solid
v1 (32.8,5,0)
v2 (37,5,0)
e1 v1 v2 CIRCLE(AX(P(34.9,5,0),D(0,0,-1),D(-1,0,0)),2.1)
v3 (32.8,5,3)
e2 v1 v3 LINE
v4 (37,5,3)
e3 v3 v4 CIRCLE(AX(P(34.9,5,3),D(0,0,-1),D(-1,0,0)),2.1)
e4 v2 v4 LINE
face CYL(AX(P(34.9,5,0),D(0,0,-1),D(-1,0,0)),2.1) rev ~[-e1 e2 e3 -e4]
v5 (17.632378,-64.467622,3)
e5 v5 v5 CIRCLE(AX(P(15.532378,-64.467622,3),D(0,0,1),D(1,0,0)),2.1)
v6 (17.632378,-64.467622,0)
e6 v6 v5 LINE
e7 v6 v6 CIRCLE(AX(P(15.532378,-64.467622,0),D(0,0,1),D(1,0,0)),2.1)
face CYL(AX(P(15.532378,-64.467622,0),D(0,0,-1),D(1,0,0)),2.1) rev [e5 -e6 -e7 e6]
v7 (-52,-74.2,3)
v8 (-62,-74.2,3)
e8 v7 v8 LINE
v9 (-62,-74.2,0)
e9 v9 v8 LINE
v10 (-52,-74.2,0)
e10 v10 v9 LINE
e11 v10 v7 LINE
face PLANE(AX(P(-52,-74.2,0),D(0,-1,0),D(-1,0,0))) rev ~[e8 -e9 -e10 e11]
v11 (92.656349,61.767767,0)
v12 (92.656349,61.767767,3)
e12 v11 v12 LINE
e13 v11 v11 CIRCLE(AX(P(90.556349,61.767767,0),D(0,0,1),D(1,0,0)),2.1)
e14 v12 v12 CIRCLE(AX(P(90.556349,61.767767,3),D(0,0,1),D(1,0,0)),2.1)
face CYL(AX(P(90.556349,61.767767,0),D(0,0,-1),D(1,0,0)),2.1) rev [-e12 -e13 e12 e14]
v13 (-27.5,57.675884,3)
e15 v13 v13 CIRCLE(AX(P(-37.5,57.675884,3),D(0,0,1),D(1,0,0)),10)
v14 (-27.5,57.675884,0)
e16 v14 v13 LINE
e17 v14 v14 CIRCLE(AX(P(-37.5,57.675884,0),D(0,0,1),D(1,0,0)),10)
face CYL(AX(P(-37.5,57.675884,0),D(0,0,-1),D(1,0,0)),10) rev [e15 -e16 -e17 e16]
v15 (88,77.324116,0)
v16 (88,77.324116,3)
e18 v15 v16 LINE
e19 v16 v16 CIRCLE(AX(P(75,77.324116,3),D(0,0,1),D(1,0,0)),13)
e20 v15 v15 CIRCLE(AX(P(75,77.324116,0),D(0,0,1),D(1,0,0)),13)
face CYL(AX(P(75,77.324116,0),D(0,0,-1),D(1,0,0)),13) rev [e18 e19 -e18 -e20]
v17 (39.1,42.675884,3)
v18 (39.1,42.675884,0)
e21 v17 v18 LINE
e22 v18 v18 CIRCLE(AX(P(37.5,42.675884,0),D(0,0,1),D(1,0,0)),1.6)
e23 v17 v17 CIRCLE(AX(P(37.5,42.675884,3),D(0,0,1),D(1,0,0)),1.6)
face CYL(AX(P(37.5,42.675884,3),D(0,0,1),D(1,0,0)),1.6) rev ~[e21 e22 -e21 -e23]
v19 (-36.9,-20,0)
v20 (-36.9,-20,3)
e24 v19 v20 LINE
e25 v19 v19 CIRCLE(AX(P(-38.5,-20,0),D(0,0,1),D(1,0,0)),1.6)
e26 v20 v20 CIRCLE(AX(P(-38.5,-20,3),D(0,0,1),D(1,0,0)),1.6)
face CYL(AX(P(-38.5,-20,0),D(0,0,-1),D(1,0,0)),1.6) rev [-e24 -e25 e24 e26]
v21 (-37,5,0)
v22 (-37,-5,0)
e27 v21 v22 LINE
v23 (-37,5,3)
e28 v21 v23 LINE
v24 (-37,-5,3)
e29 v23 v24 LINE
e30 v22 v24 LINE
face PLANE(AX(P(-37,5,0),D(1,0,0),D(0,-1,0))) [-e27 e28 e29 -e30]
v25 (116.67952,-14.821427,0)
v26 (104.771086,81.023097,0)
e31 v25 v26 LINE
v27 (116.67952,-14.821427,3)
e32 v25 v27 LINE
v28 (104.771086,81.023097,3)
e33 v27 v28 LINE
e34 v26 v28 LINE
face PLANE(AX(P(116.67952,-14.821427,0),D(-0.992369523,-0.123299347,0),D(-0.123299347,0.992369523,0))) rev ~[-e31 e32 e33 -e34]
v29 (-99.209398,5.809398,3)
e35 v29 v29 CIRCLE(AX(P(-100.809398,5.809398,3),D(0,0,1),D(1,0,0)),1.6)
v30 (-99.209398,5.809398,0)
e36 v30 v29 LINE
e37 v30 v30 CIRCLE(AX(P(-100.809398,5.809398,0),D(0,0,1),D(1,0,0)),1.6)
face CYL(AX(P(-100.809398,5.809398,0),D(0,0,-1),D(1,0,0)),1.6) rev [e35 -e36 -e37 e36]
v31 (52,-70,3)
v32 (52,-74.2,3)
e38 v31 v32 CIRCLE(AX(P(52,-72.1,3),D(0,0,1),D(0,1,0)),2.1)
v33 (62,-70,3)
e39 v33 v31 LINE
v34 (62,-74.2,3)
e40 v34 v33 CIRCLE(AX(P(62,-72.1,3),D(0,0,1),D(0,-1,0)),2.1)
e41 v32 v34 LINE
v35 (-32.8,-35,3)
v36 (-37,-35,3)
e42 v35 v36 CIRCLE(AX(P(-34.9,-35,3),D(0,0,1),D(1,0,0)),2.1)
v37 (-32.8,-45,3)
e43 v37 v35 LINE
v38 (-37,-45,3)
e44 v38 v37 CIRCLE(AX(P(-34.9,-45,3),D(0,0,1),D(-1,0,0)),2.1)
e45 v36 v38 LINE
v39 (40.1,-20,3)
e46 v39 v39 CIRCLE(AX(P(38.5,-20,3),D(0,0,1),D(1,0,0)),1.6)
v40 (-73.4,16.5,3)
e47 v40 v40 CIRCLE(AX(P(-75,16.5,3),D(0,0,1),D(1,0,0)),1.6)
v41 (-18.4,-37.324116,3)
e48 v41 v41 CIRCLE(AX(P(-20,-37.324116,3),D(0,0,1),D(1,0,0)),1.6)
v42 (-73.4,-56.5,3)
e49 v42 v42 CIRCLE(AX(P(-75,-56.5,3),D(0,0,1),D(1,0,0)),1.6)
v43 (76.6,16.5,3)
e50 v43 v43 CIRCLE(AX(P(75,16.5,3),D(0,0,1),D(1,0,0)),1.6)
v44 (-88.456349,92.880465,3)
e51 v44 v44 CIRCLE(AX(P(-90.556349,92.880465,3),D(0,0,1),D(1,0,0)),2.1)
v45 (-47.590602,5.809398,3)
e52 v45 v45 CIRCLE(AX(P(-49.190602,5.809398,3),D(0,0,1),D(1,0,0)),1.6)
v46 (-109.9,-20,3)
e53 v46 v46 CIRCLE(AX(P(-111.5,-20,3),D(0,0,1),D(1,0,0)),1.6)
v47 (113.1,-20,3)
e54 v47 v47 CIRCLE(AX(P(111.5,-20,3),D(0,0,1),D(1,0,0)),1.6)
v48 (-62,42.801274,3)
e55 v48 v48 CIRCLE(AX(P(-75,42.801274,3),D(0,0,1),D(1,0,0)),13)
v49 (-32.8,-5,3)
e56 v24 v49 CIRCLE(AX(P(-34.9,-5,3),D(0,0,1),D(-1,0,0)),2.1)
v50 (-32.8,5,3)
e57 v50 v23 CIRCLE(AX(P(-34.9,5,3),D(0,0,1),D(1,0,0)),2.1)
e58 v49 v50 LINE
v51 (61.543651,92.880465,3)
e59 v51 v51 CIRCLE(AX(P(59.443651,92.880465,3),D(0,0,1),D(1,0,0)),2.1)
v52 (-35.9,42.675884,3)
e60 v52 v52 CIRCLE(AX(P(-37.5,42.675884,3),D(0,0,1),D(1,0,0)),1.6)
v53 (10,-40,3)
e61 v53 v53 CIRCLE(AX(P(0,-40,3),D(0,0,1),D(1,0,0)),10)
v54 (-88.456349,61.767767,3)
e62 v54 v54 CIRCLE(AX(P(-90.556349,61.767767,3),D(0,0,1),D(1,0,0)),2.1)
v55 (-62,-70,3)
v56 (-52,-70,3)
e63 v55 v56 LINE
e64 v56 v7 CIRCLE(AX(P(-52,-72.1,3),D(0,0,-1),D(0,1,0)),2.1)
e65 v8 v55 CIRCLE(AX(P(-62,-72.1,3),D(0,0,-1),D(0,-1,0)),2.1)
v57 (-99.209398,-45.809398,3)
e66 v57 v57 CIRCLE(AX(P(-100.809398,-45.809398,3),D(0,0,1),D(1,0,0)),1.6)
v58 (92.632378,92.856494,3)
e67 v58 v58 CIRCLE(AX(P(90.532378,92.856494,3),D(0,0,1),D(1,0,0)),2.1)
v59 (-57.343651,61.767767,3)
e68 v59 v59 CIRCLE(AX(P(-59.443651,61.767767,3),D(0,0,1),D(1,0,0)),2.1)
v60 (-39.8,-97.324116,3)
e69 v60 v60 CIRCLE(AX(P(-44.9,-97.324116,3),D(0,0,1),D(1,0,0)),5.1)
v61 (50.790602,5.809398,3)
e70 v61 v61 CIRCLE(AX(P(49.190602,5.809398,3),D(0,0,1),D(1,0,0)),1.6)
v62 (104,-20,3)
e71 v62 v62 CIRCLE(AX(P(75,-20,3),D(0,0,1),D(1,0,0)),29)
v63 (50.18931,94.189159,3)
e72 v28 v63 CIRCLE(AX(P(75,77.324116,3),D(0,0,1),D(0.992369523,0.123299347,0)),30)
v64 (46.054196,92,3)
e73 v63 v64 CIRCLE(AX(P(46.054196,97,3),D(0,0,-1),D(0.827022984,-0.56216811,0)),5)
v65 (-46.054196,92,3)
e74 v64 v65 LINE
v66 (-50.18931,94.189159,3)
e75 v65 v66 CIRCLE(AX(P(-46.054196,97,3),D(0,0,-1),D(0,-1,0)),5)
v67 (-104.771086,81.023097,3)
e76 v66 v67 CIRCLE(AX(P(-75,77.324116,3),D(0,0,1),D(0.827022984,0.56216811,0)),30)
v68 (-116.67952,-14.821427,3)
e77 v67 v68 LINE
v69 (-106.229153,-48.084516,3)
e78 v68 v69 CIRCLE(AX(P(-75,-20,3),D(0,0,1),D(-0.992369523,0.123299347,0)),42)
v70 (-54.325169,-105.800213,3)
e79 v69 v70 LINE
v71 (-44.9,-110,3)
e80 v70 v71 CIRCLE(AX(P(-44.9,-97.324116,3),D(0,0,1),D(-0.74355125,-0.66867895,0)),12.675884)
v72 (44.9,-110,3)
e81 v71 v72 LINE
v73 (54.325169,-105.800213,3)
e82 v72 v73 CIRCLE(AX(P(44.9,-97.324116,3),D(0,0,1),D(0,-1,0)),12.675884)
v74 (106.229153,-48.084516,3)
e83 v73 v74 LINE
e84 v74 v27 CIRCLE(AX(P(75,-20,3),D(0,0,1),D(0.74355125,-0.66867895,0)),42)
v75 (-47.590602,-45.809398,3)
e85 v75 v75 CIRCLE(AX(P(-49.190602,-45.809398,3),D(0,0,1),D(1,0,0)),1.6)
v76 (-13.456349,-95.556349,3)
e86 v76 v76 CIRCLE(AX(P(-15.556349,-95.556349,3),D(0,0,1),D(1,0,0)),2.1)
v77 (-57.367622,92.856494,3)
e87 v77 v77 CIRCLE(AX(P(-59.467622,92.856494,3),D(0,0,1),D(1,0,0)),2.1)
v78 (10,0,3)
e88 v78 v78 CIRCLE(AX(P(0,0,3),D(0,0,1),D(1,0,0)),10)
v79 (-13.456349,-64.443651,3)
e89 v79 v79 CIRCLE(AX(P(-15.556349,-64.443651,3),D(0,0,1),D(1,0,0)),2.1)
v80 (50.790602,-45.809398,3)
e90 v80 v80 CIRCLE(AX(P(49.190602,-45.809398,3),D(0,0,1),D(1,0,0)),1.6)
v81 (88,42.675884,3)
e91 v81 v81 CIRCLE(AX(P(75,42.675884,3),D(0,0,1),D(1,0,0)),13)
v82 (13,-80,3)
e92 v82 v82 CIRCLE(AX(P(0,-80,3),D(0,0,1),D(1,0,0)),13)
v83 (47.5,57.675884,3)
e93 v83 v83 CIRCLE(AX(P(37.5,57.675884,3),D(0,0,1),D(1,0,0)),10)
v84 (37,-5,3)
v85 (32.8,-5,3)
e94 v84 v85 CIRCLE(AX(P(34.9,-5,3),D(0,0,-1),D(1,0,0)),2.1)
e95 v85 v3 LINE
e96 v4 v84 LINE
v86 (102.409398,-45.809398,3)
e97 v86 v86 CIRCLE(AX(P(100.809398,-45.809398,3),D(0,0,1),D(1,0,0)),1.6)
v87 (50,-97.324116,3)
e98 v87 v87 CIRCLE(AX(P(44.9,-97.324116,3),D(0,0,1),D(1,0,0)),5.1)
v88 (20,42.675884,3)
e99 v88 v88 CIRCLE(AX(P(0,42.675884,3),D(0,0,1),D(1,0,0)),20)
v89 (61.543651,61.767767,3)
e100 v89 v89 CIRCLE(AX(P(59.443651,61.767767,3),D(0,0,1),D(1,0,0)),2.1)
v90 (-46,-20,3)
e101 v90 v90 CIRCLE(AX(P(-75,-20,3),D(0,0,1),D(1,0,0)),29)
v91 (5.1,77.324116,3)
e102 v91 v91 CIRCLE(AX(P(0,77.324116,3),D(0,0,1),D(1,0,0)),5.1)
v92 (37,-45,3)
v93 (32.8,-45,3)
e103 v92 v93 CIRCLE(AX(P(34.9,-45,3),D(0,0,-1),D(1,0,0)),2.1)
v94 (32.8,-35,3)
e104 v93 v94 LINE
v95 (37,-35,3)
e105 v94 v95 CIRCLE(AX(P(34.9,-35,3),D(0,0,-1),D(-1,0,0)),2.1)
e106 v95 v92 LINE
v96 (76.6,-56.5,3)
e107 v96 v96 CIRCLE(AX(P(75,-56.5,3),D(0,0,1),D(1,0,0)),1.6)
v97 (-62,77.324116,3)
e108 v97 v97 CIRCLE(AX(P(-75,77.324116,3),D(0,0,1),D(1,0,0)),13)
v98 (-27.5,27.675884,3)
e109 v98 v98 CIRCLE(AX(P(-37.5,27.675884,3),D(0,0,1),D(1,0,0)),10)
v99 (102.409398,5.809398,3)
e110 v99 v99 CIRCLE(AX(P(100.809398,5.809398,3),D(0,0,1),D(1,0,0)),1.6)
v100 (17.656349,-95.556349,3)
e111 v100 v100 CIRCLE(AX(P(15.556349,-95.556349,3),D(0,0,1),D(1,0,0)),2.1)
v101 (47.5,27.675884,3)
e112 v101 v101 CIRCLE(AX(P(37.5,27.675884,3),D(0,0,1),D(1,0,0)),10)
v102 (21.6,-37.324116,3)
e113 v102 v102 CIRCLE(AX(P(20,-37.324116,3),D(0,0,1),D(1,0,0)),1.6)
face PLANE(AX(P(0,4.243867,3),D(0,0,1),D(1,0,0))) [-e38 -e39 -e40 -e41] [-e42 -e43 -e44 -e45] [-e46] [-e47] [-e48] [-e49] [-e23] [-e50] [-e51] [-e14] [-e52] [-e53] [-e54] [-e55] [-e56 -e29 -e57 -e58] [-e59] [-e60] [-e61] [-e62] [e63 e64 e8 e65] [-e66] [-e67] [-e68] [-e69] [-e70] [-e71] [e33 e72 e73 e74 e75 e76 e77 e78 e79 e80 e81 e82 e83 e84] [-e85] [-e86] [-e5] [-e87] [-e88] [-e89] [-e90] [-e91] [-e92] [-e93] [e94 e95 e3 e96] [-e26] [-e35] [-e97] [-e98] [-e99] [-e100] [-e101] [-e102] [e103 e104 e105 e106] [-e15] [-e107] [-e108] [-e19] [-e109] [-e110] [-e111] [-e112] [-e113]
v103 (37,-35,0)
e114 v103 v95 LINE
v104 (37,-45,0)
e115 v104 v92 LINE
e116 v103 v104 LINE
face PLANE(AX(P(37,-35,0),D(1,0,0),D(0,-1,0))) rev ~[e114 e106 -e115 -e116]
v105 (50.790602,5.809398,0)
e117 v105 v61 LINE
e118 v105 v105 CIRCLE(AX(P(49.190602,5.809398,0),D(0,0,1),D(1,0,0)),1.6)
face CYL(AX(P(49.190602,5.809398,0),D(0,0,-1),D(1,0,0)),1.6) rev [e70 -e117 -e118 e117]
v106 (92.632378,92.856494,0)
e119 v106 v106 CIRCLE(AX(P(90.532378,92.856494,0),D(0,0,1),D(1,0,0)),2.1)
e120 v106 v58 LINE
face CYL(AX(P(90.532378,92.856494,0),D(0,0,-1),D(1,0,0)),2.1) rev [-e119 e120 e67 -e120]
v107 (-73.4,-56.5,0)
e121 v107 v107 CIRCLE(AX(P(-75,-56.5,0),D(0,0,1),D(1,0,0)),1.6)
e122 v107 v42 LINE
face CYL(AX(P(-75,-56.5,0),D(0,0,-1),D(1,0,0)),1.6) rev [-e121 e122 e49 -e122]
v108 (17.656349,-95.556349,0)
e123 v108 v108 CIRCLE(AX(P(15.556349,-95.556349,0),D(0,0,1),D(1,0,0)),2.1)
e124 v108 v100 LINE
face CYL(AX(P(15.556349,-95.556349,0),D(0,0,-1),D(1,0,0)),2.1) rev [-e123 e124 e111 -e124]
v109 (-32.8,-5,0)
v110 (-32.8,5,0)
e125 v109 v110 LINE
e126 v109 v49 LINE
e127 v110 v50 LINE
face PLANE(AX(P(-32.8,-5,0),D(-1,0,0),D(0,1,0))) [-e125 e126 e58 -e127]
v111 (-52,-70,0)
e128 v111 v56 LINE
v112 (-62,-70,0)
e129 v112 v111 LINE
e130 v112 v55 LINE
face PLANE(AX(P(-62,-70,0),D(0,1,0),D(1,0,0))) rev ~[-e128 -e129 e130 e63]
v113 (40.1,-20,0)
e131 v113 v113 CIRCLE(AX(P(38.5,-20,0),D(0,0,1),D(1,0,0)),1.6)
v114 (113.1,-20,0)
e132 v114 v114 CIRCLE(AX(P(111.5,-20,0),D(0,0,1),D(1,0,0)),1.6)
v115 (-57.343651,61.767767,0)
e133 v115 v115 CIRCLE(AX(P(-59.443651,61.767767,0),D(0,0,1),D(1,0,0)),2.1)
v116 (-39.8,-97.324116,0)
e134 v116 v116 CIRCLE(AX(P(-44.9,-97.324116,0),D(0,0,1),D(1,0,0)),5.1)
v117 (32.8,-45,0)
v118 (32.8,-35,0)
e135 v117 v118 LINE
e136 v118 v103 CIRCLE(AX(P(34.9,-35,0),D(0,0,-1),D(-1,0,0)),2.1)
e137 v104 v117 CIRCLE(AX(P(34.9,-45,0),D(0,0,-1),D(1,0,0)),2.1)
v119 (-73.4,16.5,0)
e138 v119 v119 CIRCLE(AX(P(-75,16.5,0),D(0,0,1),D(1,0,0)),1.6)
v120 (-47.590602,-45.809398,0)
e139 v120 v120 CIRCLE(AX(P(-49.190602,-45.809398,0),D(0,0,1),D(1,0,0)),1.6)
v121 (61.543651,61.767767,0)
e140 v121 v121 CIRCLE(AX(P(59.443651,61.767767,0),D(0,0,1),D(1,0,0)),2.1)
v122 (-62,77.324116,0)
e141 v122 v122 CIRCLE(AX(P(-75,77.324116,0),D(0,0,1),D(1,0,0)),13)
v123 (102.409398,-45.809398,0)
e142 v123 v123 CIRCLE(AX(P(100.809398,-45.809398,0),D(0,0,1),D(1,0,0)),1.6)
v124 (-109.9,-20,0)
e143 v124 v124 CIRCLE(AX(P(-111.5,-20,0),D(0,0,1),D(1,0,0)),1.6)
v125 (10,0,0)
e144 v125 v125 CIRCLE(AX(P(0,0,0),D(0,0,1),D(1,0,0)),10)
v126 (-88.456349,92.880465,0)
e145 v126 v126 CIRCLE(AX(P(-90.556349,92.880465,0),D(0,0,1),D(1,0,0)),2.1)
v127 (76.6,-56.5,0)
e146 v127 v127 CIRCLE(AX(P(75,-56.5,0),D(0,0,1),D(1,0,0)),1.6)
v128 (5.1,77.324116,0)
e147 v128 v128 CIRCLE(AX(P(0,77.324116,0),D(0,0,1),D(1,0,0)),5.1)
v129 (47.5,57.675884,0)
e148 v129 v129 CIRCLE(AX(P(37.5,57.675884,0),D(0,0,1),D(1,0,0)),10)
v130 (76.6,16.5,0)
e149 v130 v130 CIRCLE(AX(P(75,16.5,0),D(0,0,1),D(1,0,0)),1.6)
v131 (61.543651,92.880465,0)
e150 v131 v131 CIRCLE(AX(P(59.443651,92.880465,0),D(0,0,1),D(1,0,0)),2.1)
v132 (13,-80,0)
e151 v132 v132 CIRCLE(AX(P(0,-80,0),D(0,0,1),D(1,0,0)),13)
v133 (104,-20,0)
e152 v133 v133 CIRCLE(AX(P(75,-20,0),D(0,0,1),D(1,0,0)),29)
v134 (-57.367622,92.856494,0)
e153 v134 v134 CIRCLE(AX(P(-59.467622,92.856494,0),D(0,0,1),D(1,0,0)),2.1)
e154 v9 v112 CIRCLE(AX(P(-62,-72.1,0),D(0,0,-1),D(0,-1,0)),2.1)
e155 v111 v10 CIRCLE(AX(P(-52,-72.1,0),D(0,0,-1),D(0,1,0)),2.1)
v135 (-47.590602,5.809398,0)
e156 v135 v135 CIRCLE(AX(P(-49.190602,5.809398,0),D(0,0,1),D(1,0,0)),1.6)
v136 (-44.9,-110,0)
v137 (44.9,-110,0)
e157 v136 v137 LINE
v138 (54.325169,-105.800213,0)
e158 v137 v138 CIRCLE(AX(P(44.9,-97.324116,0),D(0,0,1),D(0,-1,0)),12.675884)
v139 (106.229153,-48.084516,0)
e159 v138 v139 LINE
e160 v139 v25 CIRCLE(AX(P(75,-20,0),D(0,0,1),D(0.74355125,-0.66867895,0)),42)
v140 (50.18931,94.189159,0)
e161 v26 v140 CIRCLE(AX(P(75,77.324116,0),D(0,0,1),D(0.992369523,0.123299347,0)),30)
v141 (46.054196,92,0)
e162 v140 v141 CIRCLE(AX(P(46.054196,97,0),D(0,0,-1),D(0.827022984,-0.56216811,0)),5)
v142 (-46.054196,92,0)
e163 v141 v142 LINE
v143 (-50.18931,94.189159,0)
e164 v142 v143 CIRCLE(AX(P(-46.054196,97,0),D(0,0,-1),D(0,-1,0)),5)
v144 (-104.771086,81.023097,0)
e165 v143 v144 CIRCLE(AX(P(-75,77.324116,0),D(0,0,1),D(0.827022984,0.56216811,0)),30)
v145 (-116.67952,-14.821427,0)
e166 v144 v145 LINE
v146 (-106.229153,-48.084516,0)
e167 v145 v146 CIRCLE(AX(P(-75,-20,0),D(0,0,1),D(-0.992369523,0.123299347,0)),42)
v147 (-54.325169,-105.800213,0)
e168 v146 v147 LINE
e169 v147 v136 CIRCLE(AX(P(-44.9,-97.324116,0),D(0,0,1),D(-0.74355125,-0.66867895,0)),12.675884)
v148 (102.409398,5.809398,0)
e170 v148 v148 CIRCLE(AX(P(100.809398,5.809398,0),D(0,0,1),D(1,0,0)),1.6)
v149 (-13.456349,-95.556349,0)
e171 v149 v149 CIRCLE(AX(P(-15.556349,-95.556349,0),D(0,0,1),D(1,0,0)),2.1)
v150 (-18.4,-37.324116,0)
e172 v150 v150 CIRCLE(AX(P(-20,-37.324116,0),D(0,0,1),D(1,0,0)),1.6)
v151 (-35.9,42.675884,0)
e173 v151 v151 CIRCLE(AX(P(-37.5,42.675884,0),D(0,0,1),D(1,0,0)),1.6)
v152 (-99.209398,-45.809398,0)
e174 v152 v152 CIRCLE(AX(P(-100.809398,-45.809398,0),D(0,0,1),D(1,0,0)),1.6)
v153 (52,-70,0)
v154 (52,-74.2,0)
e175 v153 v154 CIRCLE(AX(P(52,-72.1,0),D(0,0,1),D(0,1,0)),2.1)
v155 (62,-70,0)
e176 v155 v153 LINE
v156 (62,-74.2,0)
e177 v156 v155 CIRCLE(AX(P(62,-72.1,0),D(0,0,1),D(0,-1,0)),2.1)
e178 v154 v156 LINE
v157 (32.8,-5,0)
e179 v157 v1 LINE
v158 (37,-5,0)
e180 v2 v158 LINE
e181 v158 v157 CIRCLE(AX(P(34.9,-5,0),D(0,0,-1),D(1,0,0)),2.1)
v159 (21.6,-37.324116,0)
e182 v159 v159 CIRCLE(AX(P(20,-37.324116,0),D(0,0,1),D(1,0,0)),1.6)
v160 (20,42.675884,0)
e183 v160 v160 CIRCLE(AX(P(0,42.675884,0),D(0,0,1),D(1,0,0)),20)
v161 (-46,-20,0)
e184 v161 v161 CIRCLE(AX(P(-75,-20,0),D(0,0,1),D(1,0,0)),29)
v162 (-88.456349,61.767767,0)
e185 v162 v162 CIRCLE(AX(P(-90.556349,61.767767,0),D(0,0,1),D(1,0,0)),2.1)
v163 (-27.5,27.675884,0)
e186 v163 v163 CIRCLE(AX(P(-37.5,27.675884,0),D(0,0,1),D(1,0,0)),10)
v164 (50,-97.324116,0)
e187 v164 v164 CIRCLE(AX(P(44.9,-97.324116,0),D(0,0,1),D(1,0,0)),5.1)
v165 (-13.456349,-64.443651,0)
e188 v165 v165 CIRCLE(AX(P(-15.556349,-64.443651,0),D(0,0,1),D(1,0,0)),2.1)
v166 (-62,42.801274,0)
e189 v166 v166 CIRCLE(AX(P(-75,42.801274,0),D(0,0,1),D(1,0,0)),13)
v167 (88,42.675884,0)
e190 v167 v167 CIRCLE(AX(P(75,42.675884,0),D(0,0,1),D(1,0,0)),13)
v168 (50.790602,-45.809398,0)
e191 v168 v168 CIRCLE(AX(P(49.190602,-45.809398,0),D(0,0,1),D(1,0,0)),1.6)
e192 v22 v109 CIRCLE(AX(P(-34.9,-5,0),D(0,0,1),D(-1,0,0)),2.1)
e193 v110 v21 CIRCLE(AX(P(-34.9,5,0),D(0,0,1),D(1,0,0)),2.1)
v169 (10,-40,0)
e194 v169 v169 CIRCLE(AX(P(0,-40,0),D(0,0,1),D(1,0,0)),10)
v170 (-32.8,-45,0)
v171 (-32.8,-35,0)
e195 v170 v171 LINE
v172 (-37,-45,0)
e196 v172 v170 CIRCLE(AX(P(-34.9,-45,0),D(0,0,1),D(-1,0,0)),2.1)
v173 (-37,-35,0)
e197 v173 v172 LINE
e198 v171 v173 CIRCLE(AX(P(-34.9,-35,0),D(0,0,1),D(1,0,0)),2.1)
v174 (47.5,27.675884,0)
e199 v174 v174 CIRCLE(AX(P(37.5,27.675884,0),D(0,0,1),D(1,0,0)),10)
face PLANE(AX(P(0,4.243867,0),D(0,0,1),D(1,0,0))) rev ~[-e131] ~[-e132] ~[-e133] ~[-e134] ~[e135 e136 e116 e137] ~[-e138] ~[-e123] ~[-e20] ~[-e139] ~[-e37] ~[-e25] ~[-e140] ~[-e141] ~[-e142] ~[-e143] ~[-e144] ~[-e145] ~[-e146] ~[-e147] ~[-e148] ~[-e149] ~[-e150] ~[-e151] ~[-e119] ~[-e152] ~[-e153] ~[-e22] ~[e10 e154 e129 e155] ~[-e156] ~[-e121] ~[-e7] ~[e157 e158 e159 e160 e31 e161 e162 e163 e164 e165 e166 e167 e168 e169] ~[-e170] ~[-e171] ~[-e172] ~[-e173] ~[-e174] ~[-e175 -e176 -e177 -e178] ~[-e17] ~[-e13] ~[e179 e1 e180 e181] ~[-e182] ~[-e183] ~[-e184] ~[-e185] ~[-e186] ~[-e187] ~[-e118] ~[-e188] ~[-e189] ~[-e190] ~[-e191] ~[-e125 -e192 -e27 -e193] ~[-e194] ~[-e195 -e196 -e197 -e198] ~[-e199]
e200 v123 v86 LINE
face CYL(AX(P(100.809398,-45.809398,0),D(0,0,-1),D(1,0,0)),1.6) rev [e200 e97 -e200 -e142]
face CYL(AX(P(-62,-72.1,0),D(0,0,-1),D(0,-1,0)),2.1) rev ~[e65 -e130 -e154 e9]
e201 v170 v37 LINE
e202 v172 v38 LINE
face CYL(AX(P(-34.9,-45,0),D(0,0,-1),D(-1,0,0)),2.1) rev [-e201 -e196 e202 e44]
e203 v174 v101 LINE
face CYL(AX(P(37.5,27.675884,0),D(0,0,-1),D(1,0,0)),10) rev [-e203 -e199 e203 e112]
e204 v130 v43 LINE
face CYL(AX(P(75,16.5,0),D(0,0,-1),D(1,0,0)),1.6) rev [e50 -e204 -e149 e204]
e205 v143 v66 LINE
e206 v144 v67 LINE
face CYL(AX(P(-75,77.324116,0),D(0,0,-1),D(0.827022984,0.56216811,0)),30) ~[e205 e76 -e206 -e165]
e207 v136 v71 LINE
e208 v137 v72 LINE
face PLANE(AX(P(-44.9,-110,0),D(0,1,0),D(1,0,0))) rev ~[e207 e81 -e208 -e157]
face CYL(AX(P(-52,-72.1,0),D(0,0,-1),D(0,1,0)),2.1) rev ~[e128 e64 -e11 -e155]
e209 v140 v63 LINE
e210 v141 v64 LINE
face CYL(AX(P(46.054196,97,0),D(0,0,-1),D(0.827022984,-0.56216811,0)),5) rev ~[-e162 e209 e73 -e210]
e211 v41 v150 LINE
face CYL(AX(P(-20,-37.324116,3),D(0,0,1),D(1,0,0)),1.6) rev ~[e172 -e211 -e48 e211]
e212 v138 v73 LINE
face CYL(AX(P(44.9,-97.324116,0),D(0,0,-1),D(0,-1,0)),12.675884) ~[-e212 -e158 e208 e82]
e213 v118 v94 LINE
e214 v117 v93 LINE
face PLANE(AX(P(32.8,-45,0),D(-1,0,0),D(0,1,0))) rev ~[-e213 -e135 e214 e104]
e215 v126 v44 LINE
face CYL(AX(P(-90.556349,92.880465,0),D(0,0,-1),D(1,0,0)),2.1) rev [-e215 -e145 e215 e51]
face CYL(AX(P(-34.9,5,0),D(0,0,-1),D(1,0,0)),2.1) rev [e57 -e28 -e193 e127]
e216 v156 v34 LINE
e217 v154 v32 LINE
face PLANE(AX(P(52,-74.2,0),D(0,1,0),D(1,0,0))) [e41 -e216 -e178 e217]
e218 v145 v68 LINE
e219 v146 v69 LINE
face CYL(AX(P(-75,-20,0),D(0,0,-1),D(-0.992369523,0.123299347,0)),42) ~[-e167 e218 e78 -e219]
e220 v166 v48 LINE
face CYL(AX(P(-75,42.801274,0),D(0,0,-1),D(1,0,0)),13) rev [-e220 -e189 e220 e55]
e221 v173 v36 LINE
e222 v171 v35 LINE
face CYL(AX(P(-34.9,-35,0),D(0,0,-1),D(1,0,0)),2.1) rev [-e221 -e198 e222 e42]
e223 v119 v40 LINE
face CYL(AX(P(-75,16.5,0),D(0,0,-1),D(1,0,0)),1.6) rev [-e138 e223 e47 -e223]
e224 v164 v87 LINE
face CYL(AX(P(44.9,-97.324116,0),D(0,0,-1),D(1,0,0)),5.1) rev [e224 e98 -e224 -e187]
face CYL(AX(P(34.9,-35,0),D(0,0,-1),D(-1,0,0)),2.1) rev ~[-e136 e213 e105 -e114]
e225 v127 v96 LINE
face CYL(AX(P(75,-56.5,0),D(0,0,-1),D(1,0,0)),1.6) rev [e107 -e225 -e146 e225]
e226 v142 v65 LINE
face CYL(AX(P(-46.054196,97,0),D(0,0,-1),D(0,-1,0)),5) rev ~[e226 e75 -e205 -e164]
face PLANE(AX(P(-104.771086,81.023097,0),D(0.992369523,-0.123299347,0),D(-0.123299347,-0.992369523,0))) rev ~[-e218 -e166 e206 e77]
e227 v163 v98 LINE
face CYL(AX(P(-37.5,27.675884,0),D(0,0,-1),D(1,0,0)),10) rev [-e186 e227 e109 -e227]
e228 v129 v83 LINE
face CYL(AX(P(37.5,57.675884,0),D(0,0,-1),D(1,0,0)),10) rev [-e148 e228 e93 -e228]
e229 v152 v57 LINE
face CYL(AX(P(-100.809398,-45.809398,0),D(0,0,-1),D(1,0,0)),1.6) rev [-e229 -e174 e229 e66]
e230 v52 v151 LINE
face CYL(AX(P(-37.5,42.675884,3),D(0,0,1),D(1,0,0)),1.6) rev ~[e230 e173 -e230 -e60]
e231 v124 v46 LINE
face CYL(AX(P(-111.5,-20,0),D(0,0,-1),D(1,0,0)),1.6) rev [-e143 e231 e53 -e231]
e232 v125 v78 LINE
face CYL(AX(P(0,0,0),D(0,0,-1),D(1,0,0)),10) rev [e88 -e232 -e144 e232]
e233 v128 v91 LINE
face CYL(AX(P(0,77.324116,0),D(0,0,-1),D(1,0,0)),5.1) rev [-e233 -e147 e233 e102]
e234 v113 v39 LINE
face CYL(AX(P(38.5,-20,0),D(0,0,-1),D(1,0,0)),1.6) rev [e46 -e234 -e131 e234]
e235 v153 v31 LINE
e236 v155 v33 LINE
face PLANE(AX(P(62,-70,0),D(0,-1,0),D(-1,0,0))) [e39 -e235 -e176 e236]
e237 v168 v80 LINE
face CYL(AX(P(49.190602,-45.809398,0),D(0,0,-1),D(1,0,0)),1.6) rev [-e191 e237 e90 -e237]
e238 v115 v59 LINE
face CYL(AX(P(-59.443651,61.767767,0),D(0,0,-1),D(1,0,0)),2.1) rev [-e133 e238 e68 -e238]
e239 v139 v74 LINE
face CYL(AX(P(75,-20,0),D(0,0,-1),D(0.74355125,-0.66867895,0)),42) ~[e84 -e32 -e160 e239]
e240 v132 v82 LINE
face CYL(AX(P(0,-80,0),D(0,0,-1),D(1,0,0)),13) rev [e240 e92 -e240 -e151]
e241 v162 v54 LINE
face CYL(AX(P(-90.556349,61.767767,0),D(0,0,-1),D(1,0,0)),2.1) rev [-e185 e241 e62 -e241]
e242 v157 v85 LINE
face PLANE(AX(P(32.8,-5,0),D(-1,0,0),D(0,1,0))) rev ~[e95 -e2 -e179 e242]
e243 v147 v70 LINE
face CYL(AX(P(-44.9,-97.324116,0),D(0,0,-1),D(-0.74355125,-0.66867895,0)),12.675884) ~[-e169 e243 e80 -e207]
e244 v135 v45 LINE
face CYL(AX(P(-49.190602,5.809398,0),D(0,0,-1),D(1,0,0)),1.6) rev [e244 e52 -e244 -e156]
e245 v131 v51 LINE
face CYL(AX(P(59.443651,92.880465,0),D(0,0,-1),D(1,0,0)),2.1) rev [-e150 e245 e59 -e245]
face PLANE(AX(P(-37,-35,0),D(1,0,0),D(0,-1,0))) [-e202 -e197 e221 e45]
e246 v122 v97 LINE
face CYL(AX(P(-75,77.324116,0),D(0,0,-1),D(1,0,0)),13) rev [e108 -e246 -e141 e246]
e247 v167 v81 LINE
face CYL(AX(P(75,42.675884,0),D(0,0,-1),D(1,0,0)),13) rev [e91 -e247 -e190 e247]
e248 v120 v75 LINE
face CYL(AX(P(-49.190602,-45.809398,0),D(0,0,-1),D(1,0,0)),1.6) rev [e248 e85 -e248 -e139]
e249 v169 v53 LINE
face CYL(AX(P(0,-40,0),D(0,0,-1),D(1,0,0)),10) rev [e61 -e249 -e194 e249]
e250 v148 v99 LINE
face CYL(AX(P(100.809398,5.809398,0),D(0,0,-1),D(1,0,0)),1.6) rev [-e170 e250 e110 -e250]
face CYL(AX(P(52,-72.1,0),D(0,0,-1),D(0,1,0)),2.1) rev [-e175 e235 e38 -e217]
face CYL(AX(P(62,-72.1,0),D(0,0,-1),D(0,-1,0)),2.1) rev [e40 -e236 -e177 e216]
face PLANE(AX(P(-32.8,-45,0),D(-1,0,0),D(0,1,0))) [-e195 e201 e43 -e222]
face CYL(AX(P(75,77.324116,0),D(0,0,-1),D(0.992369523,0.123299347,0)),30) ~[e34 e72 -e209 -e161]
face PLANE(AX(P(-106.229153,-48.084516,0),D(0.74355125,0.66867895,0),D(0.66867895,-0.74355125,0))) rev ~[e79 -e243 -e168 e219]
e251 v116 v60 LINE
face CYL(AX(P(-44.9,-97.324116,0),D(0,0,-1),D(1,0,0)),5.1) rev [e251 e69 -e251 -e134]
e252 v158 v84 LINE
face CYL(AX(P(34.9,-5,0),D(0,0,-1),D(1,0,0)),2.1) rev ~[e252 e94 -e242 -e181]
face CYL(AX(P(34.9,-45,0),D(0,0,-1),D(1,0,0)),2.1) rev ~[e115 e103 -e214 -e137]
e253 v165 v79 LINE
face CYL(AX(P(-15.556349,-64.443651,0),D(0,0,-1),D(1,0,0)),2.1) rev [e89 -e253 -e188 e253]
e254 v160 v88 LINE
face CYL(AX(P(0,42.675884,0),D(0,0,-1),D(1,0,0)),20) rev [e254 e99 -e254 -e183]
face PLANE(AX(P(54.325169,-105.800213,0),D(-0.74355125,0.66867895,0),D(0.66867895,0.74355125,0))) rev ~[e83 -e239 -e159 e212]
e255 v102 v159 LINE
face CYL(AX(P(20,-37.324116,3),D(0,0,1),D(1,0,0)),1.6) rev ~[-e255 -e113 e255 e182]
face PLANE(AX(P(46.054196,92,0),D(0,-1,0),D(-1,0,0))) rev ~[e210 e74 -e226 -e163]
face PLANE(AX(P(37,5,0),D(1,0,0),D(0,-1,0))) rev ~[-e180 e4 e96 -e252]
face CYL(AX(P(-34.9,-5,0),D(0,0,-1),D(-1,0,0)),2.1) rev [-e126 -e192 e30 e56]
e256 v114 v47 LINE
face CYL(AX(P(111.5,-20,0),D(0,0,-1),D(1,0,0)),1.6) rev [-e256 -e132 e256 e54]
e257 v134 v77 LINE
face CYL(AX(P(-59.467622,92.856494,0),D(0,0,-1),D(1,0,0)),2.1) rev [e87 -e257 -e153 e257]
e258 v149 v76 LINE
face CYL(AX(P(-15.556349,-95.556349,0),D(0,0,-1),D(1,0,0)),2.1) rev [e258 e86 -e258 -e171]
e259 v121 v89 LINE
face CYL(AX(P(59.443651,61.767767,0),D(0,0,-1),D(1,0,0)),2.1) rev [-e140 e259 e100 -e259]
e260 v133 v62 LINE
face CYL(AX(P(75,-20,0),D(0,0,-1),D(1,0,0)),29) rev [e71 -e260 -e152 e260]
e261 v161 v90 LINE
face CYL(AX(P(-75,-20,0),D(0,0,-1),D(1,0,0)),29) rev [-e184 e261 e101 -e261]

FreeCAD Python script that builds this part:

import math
import FreeCAD as App
import Part
import Sketcher
from FreeCAD import Vector
Q = App.Units.Quantity

doc = App.newDocument("Part")
body = doc.addObject("PartDesign::Body", "Body")

sketch1 = body.newObject("Sketcher::SketchObject", "Sketch")
sketch1.AttachmentSupport = (doc.getObject("XY_Plane"), [""])
sketch1.MapMode = "FlatFace"
sketch1.addGeometry([
    Part.LineSegment(Vector(-44.9, -110, 0), Vector(44.9, -110, 0)),
    Part.ArcOfCircle(Part.Circle(Vector(44.9, -97.3, 0), Vector(0, 0, 1), 12.7), math.radians(-90), math.radians(-42)),
    Part.LineSegment(Vector(54.3, -105.8, 0), Vector(106.2, -48.1, 0)),
    Part.ArcOfCircle(Part.Circle(Vector(75, -20, 0), Vector(0, 0, 1), 42), math.radians(-42), math.radians(7)),
    Part.LineSegment(Vector(116.7, -14.8, 0), Vector(104.8, 81, 0)),
    Part.ArcOfCircle(Part.Circle(Vector(75, 77.3, 0), Vector(0, 0, 1), 30), math.radians(7), math.radians(146)),
    Part.ArcOfCircle(Part.Circle(Vector(46.1, 97, 0), Vector(0, 0, 1), 5), math.radians(-90), math.radians(-34)),
    Part.LineSegment(Vector(46.1, 92, 0), Vector(-46.1, 92, 0)),
    Part.ArcOfCircle(Part.Circle(Vector(-46.1, 97, 0), Vector(0, 0, 1), 5), math.radians(-146), math.radians(-90)),
    Part.ArcOfCircle(Part.Circle(Vector(-75, 77.3, 0), Vector(0, 0, 1), 30), math.radians(34), math.radians(173)),
    Part.LineSegment(Vector(-104.8, 81, 0), Vector(-116.7, -14.8, 0)),
    Part.ArcOfCircle(Part.Circle(Vector(-75, -20, 0), Vector(0, 0, 1), 42), math.radians(173), math.radians(222)),
    Part.LineSegment(Vector(-106.2, -48.1, 0), Vector(-54.3, -105.8, 0)),
    Part.ArcOfCircle(Part.Circle(Vector(-44.9, -97.3, 0), Vector(0, 0, 1), 12.7), math.radians(-138), math.radians(-90)),
    Part.ArcOfCircle(Part.Circle(Vector(-62, -72.1, 0), Vector(0, 0, 1), 2.1), math.radians(90), math.radians(270)),
    Part.LineSegment(Vector(-62, -70, 0), Vector(-52, -70, 0)),
    Part.ArcOfCircle(Part.Circle(Vector(-52, -72.1, 0), Vector(0, 0, 1), 2.1), math.radians(-90), math.radians(90)),
    Part.LineSegment(Vector(-52, -74.2, 0), Vector(-62, -74.2, 0)),
    Part.Circle(Vector(-75, -56.5, 0), Vector(0, 0, 1), 1.6),
    Part.Circle(Vector(-44.9, -97.3, 0), Vector(0, 0, 1), 5.1),
    Part.Circle(Vector(-15.6, -95.6, 0), Vector(0, 0, 1), 2.1),
    Part.Circle(Vector(-15.6, -64.4, 0), Vector(0, 0, 1), 2.1),
    Part.Circle(Vector(-100.8, -45.8, 0), Vector(0, 0, 1), 1.6),
    Part.Circle(Vector(-111.5, -20, 0), Vector(0, 0, 1), 1.6),
    Part.Circle(Vector(-75, -20, 0), Vector(0, 0, 1), 29),
    Part.Circle(Vector(-49.2, -45.8, 0), Vector(0, 0, 1), 1.6),
    Part.LineSegment(Vector(-37, -45, 0), Vector(-37, -35, 0)),
    Part.ArcOfCircle(Part.Circle(Vector(-34.9, -35, 0), Vector(0, 0, 1), 2.1), math.radians(0), math.radians(180)),
    Part.LineSegment(Vector(-32.8, -35, 0), Vector(-32.8, -45, 0)),
    Part.ArcOfCircle(Part.Circle(Vector(-34.9, -45, 0), Vector(0, 0, 1), 2.1), math.radians(180), math.radians(360)),
    Part.Circle(Vector(-38.5, -20, 0), Vector(0, 0, 1), 1.6),
    Part.Circle(Vector(15.6, -95.6, 0), Vector(0, 0, 1), 2.1),
    Part.Circle(Vector(0, -80, 0), Vector(0, 0, 1), 13),
    Part.Circle(Vector(44.9, -97.3, 0), Vector(0, 0, 1), 5.1),
    Part.Circle(Vector(15.5, -64.5, 0), Vector(0, 0, 1), 2.1),
    Part.LineSegment(Vector(52, -70, 0), Vector(62, -70, 0)),
    Part.ArcOfCircle(Part.Circle(Vector(62, -72.1, 0), Vector(0, 0, 1), 2.1), math.radians(-90), math.radians(90)),
    Part.LineSegment(Vector(62, -74.2, 0), Vector(52, -74.2, 0)),
    Part.ArcOfCircle(Part.Circle(Vector(52, -72.1, 0), Vector(0, 0, 1), 2.1), math.radians(90), math.radians(270)),
    Part.Circle(Vector(75, -56.5, 0), Vector(0, 0, 1), 1.6),
    Part.Circle(Vector(0, -40, 0), Vector(0, 0, 1), 10),
    Part.Circle(Vector(49.2, -45.8, 0), Vector(0, 0, 1), 1.6),
    Part.ArcOfCircle(Part.Circle(Vector(34.9, -35, 0), Vector(0, 0, 1), 2.1), math.radians(0), math.radians(180)),
    Part.LineSegment(Vector(37, -35, 0), Vector(37, -45, 0)),
    Part.ArcOfCircle(Part.Circle(Vector(34.9, -45, 0), Vector(0, 0, 1), 2.1), math.radians(180), math.radians(360)),
    Part.LineSegment(Vector(32.8, -45, 0), Vector(32.8, -35, 0)),
    Part.Circle(Vector(38.5, -20, 0), Vector(0, 0, 1), 1.6),
    Part.Circle(Vector(100.8, -45.8, 0), Vector(0, 0, 1), 1.6),
    Part.Circle(Vector(75, -20, 0), Vector(0, 0, 1), 29),
    Part.Circle(Vector(111.5, -20, 0), Vector(0, 0, 1), 1.6),
    Part.Circle(Vector(-100.8, 5.8, 0), Vector(0, 0, 1), 1.6),
    Part.Circle(Vector(-75, 16.5, 0), Vector(0, 0, 1), 1.6),
    Part.Circle(Vector(-75, 42.8, 0), Vector(0, 0, 1), 13),
    Part.Circle(Vector(-49.2, 5.8, 0), Vector(0, 0, 1), 1.6),
    Part.LineSegment(Vector(-37, -5, 0), Vector(-37, 5, 0)),
    Part.ArcOfCircle(Part.Circle(Vector(-34.9, 5, 0), Vector(0, 0, 1), 2.1), math.radians(0), math.radians(180)),
    Part.LineSegment(Vector(-32.8, 5, 0), Vector(-32.8, -5, 0)),
    Part.ArcOfCircle(Part.Circle(Vector(-34.9, -5, 0), Vector(0, 0, 1), 2.1), math.radians(180), math.radians(360)),
    Part.Circle(Vector(-37.5, 27.7, 0), Vector(0, 0, 1), 10),
    Part.Circle(Vector(-90.6, 61.8, 0), Vector(0, 0, 1), 2.1),
    Part.Circle(Vector(-59.4, 61.8, 0), Vector(0, 0, 1), 2.1),
    Part.Circle(Vector(-90.6, 92.9, 0), Vector(0, 0, 1), 2.1),
    Part.Circle(Vector(-75, 77.3, 0), Vector(0, 0, 1), 13),
    Part.Circle(Vector(-59.5, 92.9, 0), Vector(0, 0, 1), 2.1),
    Part.Circle(Vector(-37.5, 57.7, 0), Vector(0, 0, 1), 10),
    Part.Circle(Vector(0, 0, 0), Vector(0, 0, 1), 10),
    Part.ArcOfCircle(Part.Circle(Vector(34.9, 5, 0), Vector(0, 0, 1), 2.1), math.radians(0), math.radians(180)),
    Part.LineSegment(Vector(37, 5, 0), Vector(37, -5, 0)),
    Part.ArcOfCircle(Part.Circle(Vector(34.9, -5, 0), Vector(0, 0, 1), 2.1), math.radians(180), math.radians(360)),
    Part.LineSegment(Vector(32.8, -5, 0), Vector(32.8, 5, 0)),
    Part.Circle(Vector(49.2, 5.8, 0), Vector(0, 0, 1), 1.6),
    Part.Circle(Vector(0, 42.7, 0), Vector(0, 0, 1), 20),
    Part.Circle(Vector(37.5, 27.7, 0), Vector(0, 0, 1), 10),
    Part.Circle(Vector(75, 16.5, 0), Vector(0, 0, 1), 1.6),
    Part.Circle(Vector(100.8, 5.8, 0), Vector(0, 0, 1), 1.6),
    Part.Circle(Vector(75, 42.7, 0), Vector(0, 0, 1), 13),
    Part.Circle(Vector(37.5, 57.7, 0), Vector(0, 0, 1), 10),
    Part.Circle(Vector(0, 77.3, 0), Vector(0, 0, 1), 5.1),
    Part.Circle(Vector(59.4, 61.8, 0), Vector(0, 0, 1), 2.1),
    Part.Circle(Vector(90.6, 61.8, 0), Vector(0, 0, 1), 2.1),
    Part.Circle(Vector(75, 77.3, 0), Vector(0, 0, 1), 13),
    Part.Circle(Vector(59.4, 92.9, 0), Vector(0, 0, 1), 2.1),
    Part.Circle(Vector(90.5, 92.9, 0), Vector(0, 0, 1), 2.1),
], False)
sketch1.addConstraint([
    Sketcher.Constraint("Tangent", 0, 2, 1, 1),
    Sketcher.Constraint("Tangent", 1, 2, 2, 1),
    Sketcher.Constraint("Tangent", 2, 2, 3, 1),
    Sketcher.Constraint("Tangent", 3, 2, 4, 1),
    Sketcher.Constraint("Tangent", 4, 2, 5, 1),
    Sketcher.Constraint("Tangent", 5, 2, 6, 2),
    Sketcher.Constraint("Tangent", 6, 1, 7, 1),
    Sketcher.Constraint("Tangent", 7, 2, 8, 2),
    Sketcher.Constraint("Tangent", 8, 1, 9, 1),
    Sketcher.Constraint("Tangent", 9, 2, 10, 1),
    Sketcher.Constraint("Tangent", 10, 2, 11, 1),
    Sketcher.Constraint("Tangent", 11, 2, 12, 1),
    Sketcher.Constraint("Tangent", 12, 2, 13, 1),
    Sketcher.Constraint("Tangent", 13, 2, 0, 1),
    Sketcher.Constraint("Tangent", 14, 1, 15, 1),
    Sketcher.Constraint("Tangent", 15, 2, 16, 2),
    Sketcher.Constraint("Tangent", 16, 1, 17, 1),
    Sketcher.Constraint("Tangent", 17, 2, 14, 2),
    Sketcher.Constraint("Tangent", 26, 2, 27, 2),
    Sketcher.Constraint("Tangent", 27, 1, 28, 1),
    Sketcher.Constraint("Tangent", 28, 2, 29, 2),
    Sketcher.Constraint("Tangent", 29, 1, 26, 1),
    Sketcher.Constraint("Tangent", 35, 2, 36, 2),
    Sketcher.Constraint("Tangent", 36, 1, 37, 1),
    Sketcher.Constraint("Tangent", 37, 2, 38, 2),
    Sketcher.Constraint("Tangent", 38, 1, 35, 1),
    Sketcher.Constraint("Tangent", 42, 1, 43, 1),
    Sketcher.Constraint("Tangent", 43, 2, 44, 2),
    Sketcher.Constraint("Tangent", 44, 1, 45, 1),
    Sketcher.Constraint("Tangent", 45, 2, 42, 2),
    Sketcher.Constraint("Tangent", 54, 2, 55, 2),
    Sketcher.Constraint("Tangent", 55, 1, 56, 1),
    Sketcher.Constraint("Tangent", 56, 2, 57, 2),
    Sketcher.Constraint("Tangent", 57, 1, 54, 1),
    Sketcher.Constraint("Tangent", 66, 1, 67, 1),
    Sketcher.Constraint("Tangent", 67, 2, 68, 2),
    Sketcher.Constraint("Tangent", 68, 1, 69, 1),
    Sketcher.Constraint("Tangent", 69, 2, 66, 2),
    Sketcher.Constraint("Horizontal", 0),
    Sketcher.Constraint("Horizontal", 7),
    Sketcher.Constraint("Horizontal", 15),
    Sketcher.Constraint("Horizontal", 17),
    Sketcher.Constraint("Vertical", 26),
    Sketcher.Constraint("Vertical", 28),
    Sketcher.Constraint("Horizontal", 35),
    Sketcher.Constraint("Horizontal", 37),
    Sketcher.Constraint("Vertical", 43),
    Sketcher.Constraint("Vertical", 45),
    Sketcher.Constraint("Vertical", 54),
    Sketcher.Constraint("Vertical", 56),
    Sketcher.Constraint("Vertical", 67),
    Sketcher.Constraint("Vertical", 69),
    Sketcher.Constraint("Coincident", 65, 3, -1, 1),
    Sketcher.Constraint("Coincident", 19, 3, 13, 3),
    Sketcher.Constraint("Coincident", 24, 3, 11, 3),
    Sketcher.Constraint("Coincident", 33, 3, 1, 3),
    Sketcher.Constraint("Coincident", 48, 3, 3, 3),
    Sketcher.Constraint("Coincident", 62, 3, 9, 3),
    Sketcher.Constraint("Coincident", 80, 3, 5, 3),
    Sketcher.Constraint("Equal", 6, 8),
    Sketcher.Constraint("Equal", 5, 9),
    Sketcher.Constraint("Equal", 3, 11),
    Sketcher.Constraint("Equal", 1, 13),
    Sketcher.Constraint("Equal", 16, 20),
    Sketcher.Constraint("Equal", 20, 21),
    Sketcher.Constraint("Equal", 18, 22),
    Sketcher.Constraint("Equal", 22, 23),
    Sketcher.Constraint("Equal", 23, 25),
    Sketcher.Constraint("Equal", 21, 27),
    Sketcher.Constraint("Equal", 25, 30),
    Sketcher.Constraint("Equal", 29, 31),
    Sketcher.Constraint("Equal", 19, 33),
    Sketcher.Constraint("Equal", 31, 34),
    Sketcher.Constraint("Equal", 34, 36),
    Sketcher.Constraint("Equal", 30, 39),
    Sketcher.Constraint("Equal", 39, 41),
    Sketcher.Constraint("Equal", 38, 42),
    Sketcher.Constraint("Equal", 41, 46),
    Sketcher.Constraint("Equal", 46, 47),
    Sketcher.Constraint("Equal", 24, 48),
    Sketcher.Constraint("Equal", 47, 49),
    Sketcher.Constraint("Equal", 49, 50),
    Sketcher.Constraint("Equal", 50, 51),
    Sketcher.Constraint("Equal", 32, 52),
    Sketcher.Constraint("Equal", 51, 53),
    Sketcher.Constraint("Equal", 44, 55),
    Sketcher.Constraint("Equal", 40, 58),
    Sketcher.Constraint("Equal", 57, 59),
    Sketcher.Constraint("Equal", 59, 60),
    Sketcher.Constraint("Equal", 60, 61),
    Sketcher.Constraint("Equal", 52, 62),
    Sketcher.Constraint("Equal", 61, 63),
    Sketcher.Constraint("Equal", 58, 64),
    Sketcher.Constraint("Equal", 64, 65),
    Sketcher.Constraint("Equal", 63, 66),
    Sketcher.Constraint("Equal", 53, 70),
    Sketcher.Constraint("Equal", 65, 72),
    Sketcher.Constraint("Equal", 70, 73),
    Sketcher.Constraint("Equal", 73, 74),
    Sketcher.Constraint("Equal", 62, 75),
    Sketcher.Constraint("Equal", 72, 76),
    Sketcher.Constraint("Equal", 33, 77),
    Sketcher.Constraint("Equal", 68, 78),
    Sketcher.Constraint("Equal", 78, 79),
    Sketcher.Constraint("Equal", 75, 80),
    Sketcher.Constraint("Equal", 79, 81),
    Sketcher.Constraint("Equal", 81, 82),
    Sketcher.Constraint("Symmetric", 57, 3, 66, 3, -1, 1),
    Sketcher.Constraint("Symmetric", 5, 3, 9, 3, -2),
    Sketcher.Constraint("Symmetric", 3, 3, 11, 3, -2),
    Sketcher.Constraint("Symmetric", 20, 3, 31, 3, -2),
    Sketcher.Constraint("Symmetric", 14, 3, 36, 3, -2),
    Sketcher.Constraint("Symmetric", 18, 3, 39, 3, -2),
    Sketcher.Constraint("Symmetric", 25, 3, 41, 3, -2),
    Sketcher.Constraint("Symmetric", 27, 3, 42, 3, -2),
    Sketcher.Constraint("Symmetric", 30, 3, 46, 3, -2),
    Sketcher.Constraint("Symmetric", 22, 3, 47, 3, -2),
    Sketcher.Constraint("Symmetric", 23, 3, 49, 3, -2),
    Sketcher.Constraint("Symmetric", 53, 3, 70, 3, -2),
    Sketcher.Constraint("Symmetric", 58, 3, 72, 3, -2),
    Sketcher.Constraint("Symmetric", 51, 3, 73, 3, -2),
    Sketcher.Constraint("Symmetric", 50, 3, 74, 3, -2),
    Sketcher.Constraint("Symmetric", 64, 3, 76, 3, -2),
    Sketcher.Constraint("Symmetric", 60, 3, 78, 3, -2),
    Sketcher.Constraint("Symmetric", 59, 3, 79, 3, -2),
    Sketcher.Constraint("PointOnObject", 32, 3, -2),
    Sketcher.Constraint("PointOnObject", 40, 3, -2),
    Sketcher.Constraint("PointOnObject", 71, 3, -2),
    Sketcher.Constraint("PointOnObject", 77, 3, -2),
    Sketcher.Constraint("Horizontal", 11, 3, 23, 3),
    Sketcher.Constraint("Horizontal", 22, 3, 25, 3),
    Sketcher.Constraint("Horizontal", 24, 3, 30, 3),
    Sketcher.Constraint("Horizontal", 29, 3, 44, 3),
    Sketcher.Constraint("Horizontal", 50, 3, 53, 3),
    Sketcher.Constraint("Horizontal", 59, 3, 60, 3),
    Sketcher.Constraint("Horizontal", 55, 3, 66, 3),
    Sketcher.Constraint("Horizontal", 57, 3, 68, 3),
    Sketcher.Constraint("Horizontal", 71, 3, 75, 3),
    Sketcher.Constraint("Horizontal", 62, 3, 77, 3),
    Sketcher.Constraint("Horizontal", 61, 3, 81, 3),
    Sketcher.Constraint("Horizontal", 63, 3, 82, 3),
    Sketcher.Constraint("Horizontal", 2, 2, 11, 2),
    Sketcher.Constraint("Vertical", 3, 3, 5, 3),
    Sketcher.Constraint("Vertical", 11, 3, 18, 3),
    Sketcher.Constraint("Vertical", 20, 3, 21, 3),
    Sketcher.Constraint("Vertical", 22, 3, 50, 3),
    Sketcher.Constraint("Vertical", 24, 3, 51, 3),
    Sketcher.Constraint("Vertical", 51, 3, 52, 3),
    Sketcher.Constraint("Vertical", 25, 3, 53, 3),
    Sketcher.Constraint("Vertical", 29, 3, 55, 3),
    Sketcher.Constraint("Vertical", 59, 3, 61, 3),
    Sketcher.Constraint("Vertical", 58, 3, 64, 3),
    Sketcher.Constraint("Vertical", 73, 3, 75, 3),
    Sketcher.Constraint("Vertical", 78, 3, 81, 3),
    Sketcher.Constraint("Equal", 17, 35),
    Sketcher.Constraint("Equal", 37, 26),
    Sketcher.Constraint("Equal", 45, 54),
    Sketcher.Constraint("Diameter", 24, Q("58 mm")),
    Sketcher.Constraint("Diameter", 32, Q("26 mm")),
    Sketcher.Constraint("Diameter", 40, Q("20 mm")),
    Sketcher.Constraint("Diameter", 71, Q("40 mm")),
    Sketcher.Constraint("Radius", 3, Q("42 mm")),
    Sketcher.Constraint("Radius", 5, Q("30 mm")),
    Sketcher.Constraint("Radius", 6, Q("5 mm")),
    Sketcher.Constraint("Diameter", 18, Q("3.2 mm")),
    Sketcher.Constraint("Diameter", 19, Q("10.2 mm")),
    Sketcher.Constraint("Diameter", 20, Q("4.2 mm")),
    Sketcher.Constraint("DistanceX", 15, 1, 15, 2, Q("10 mm")),
    Sketcher.Constraint("DistanceX", 0, 1, 0, 2, Q("89.8 mm")),
    Sketcher.Constraint("DistanceX", -1, 1, 3, 3, Q("75 mm")),
    Sketcher.Constraint("DistanceY", 3, 3, -1, 1, Q("20 mm")),
    Sketcher.Constraint("DistanceY", -1, 1, 6, 3, Q("97 mm")),
    Sketcher.Constraint("DistanceX", 14, 3, -1, 1, Q("62 mm")),
    Sketcher.Constraint("DistanceY", 27, 3, -1, 1, Q("35 mm")),
    Sketcher.Constraint("DistanceY", 32, 3, -1, 1, Q("80 mm")),
    Sketcher.Constraint("DistanceY", 40, 3, -1, 1, Q("40 mm")),
    Sketcher.Constraint("DistanceY", 0, 2, -1, 1, Q("110 mm")),
    Sketcher.Constraint("DistanceY", 14, 1, -1, 1, Q("70 mm")),
    Sketcher.Constraint("DistanceX", 26, 2, -1, 1, Q("37 mm")),
    Sketcher.Constraint("DistanceY", 18, 3, -1, 1, Q("56.5 mm")),
    Sketcher.Constraint("DistanceX", 23, 3, -1, 1, Q("111.5 mm")),
    Sketcher.Constraint("DistanceX", 30, 3, -1, 1, Q("38.5 mm")),
    Sketcher.Constraint("DistanceY", -1, 1, 51, 3, Q("16.5 mm")),
    Sketcher.Constraint("DistanceX", 58, 3, -1, 1, Q("37.5 mm")),
    Sketcher.Constraint("Radius", 1, Q("12.675884 mm")),
    Sketcher.Constraint("DistanceX", 7, 2, 7, 1, Q("92.108391 mm")),
    Sketcher.Constraint("DistanceX", 20, 3, -1, 1, Q("15.556349 mm")),
    Sketcher.Constraint("DistanceY", 20, 3, -1, 1, Q("95.556349 mm")),
    Sketcher.Constraint("DistanceY", 21, 3, -1, 1, Q("64.443651 mm")),
    Sketcher.Constraint("DistanceX", 59, 3, -1, 1, Q("90.556349 mm")),
    Sketcher.Constraint("DistanceX", 60, 3, -1, 1, Q("59.443651 mm")),
    Sketcher.Constraint("DistanceX", 22, 3, -1, 1, Q("100.809398 mm")),
    Sketcher.Constraint("DistanceY", 22, 3, -1, 1, Q("45.809398 mm")),
    Sketcher.Constraint("DistanceX", 25, 3, -1, 1, Q("49.190602 mm")),
    Sketcher.Constraint("DistanceX", -1, 1, 34, 3, Q("15.532378 mm")),
    Sketcher.Constraint("DistanceY", 34, 3, -1, 1, Q("64.467622 mm")),
    Sketcher.Constraint("DistanceY", -1, 1, 50, 3, Q("5.809398 mm")),
    Sketcher.Constraint("DistanceY", -1, 1, 52, 3, Q("42.801274 mm")),
    Sketcher.Constraint("DistanceY", -1, 1, 58, 3, Q("27.675884 mm")),
    Sketcher.Constraint("DistanceY", -1, 1, 59, 3, Q("61.767767 mm")),
    Sketcher.Constraint("DistanceY", -1, 1, 61, 3, Q("92.880465 mm")),
    Sketcher.Constraint("DistanceX", 63, 3, -1, 1, Q("59.467622 mm")),
    Sketcher.Constraint("DistanceY", -1, 1, 63, 3, Q("92.856494 mm")),
    Sketcher.Constraint("DistanceY", -1, 1, 64, 3, Q("57.675884 mm")),
    Sketcher.Constraint("DistanceY", -1, 1, 71, 3, Q("42.675884 mm")),
    Sketcher.Constraint("DistanceX", -1, 1, 82, 3, Q("90.532378 mm")),
])
pad1 = body.newObject("PartDesign::Pad", "Pad")
pad1.Profile = sketch1
pad1.Length = 3

sketch2 = body.newObject("Sketcher::SketchObject", "Sketch001")
sketch2.AttachmentSupport = (doc.getObject("XY_Plane"), [""])
sketch2.MapMode = "FlatFace"
sketch2.AttachmentOffset = App.Placement(Vector(0, 0, 3), App.Rotation())
sketch2.addGeometry(Part.Circle(Vector(-37.5, 42.7, 0), Vector(0, 0, 1), 1.6), False)
sketch2.addConstraint([
    Sketcher.Constraint("Diameter", 0, Q("3.2 mm")),
    Sketcher.Constraint("DistanceX", 0, 3, -1, 1, Q("37.5 mm")),
    Sketcher.Constraint("DistanceY", -1, 1, 0, 3, Q("42.675884 mm")),
])
pocket1 = body.newObject("PartDesign::Pocket", "Pocket")
pocket1.Profile = sketch2
pocket1.Type = "UpToFirst"

sketch3 = body.newObject("Sketcher::SketchObject", "Sketch002")
sketch3.AttachmentSupport = (doc.getObject("XY_Plane"), [""])
sketch3.MapMode = "FlatFace"
sketch3.AttachmentOffset = App.Placement(Vector(0, 0, 3), App.Rotation())
sketch3.addGeometry(Part.Circle(Vector(37.5, 42.7, 0), Vector(0, 0, 1), 1.6), False)
sketch3.addConstraint([
    Sketcher.Constraint("Diameter", 0, Q("3.2 mm")),
    Sketcher.Constraint("DistanceX", -1, 1, 0, 3, Q("37.5 mm")),
    Sketcher.Constraint("DistanceY", -1, 1, 0, 3, Q("42.675884 mm")),
])
pocket2 = body.newObject("PartDesign::Pocket", "Pocket001")
pocket2.Profile = sketch3
pocket2.Type = "UpToFirst"

sketch4 = body.newObject("Sketcher::SketchObject", "Sketch003")
sketch4.AttachmentSupport = (doc.getObject("XY_Plane"), [""])
sketch4.MapMode = "FlatFace"
sketch4.AttachmentOffset = App.Placement(Vector(0, 0, 3), App.Rotation())
sketch4.addGeometry(Part.Circle(Vector(-20, -37.3, 0), Vector(0, 0, 1), 1.6), False)
sketch4.addConstraint([
    Sketcher.Constraint("Diameter", 0, Q("3.2 mm")),
    Sketcher.Constraint("DistanceX", 0, 3, -1, 1, Q("20 mm")),
    Sketcher.Constraint("DistanceY", 0, 3, -1, 1, Q("37.324116 mm")),
])
pocket3 = body.newObject("PartDesign::Pocket", "Pocket002")
pocket3.Profile = sketch4
pocket3.Type = "UpToFirst"

sketch5 = body.newObject("Sketcher::SketchObject", "Sketch004")
sketch5.AttachmentSupport = (doc.getObject("XY_Plane"), [""])
sketch5.MapMode = "FlatFace"
sketch5.AttachmentOffset = App.Placement(Vector(0, 0, 3), App.Rotation())
sketch5.addGeometry(Part.Circle(Vector(20, -37.3, 0), Vector(0, 0, 1), 1.6), False)
sketch5.addConstraint([
    Sketcher.Constraint("Diameter", 0, Q("3.2 mm")),
    Sketcher.Constraint("DistanceX", -1, 1, 0, 3, Q("20 mm")),
    Sketcher.Constraint("DistanceY", 0, 3, -1, 1, Q("37.324116 mm")),
])
pocket4 = body.newObject("PartDesign::Pocket", "Pocket003")
pocket4.Profile = sketch5
pocket4.Type = "UpToFirst"

doc.recompute()
